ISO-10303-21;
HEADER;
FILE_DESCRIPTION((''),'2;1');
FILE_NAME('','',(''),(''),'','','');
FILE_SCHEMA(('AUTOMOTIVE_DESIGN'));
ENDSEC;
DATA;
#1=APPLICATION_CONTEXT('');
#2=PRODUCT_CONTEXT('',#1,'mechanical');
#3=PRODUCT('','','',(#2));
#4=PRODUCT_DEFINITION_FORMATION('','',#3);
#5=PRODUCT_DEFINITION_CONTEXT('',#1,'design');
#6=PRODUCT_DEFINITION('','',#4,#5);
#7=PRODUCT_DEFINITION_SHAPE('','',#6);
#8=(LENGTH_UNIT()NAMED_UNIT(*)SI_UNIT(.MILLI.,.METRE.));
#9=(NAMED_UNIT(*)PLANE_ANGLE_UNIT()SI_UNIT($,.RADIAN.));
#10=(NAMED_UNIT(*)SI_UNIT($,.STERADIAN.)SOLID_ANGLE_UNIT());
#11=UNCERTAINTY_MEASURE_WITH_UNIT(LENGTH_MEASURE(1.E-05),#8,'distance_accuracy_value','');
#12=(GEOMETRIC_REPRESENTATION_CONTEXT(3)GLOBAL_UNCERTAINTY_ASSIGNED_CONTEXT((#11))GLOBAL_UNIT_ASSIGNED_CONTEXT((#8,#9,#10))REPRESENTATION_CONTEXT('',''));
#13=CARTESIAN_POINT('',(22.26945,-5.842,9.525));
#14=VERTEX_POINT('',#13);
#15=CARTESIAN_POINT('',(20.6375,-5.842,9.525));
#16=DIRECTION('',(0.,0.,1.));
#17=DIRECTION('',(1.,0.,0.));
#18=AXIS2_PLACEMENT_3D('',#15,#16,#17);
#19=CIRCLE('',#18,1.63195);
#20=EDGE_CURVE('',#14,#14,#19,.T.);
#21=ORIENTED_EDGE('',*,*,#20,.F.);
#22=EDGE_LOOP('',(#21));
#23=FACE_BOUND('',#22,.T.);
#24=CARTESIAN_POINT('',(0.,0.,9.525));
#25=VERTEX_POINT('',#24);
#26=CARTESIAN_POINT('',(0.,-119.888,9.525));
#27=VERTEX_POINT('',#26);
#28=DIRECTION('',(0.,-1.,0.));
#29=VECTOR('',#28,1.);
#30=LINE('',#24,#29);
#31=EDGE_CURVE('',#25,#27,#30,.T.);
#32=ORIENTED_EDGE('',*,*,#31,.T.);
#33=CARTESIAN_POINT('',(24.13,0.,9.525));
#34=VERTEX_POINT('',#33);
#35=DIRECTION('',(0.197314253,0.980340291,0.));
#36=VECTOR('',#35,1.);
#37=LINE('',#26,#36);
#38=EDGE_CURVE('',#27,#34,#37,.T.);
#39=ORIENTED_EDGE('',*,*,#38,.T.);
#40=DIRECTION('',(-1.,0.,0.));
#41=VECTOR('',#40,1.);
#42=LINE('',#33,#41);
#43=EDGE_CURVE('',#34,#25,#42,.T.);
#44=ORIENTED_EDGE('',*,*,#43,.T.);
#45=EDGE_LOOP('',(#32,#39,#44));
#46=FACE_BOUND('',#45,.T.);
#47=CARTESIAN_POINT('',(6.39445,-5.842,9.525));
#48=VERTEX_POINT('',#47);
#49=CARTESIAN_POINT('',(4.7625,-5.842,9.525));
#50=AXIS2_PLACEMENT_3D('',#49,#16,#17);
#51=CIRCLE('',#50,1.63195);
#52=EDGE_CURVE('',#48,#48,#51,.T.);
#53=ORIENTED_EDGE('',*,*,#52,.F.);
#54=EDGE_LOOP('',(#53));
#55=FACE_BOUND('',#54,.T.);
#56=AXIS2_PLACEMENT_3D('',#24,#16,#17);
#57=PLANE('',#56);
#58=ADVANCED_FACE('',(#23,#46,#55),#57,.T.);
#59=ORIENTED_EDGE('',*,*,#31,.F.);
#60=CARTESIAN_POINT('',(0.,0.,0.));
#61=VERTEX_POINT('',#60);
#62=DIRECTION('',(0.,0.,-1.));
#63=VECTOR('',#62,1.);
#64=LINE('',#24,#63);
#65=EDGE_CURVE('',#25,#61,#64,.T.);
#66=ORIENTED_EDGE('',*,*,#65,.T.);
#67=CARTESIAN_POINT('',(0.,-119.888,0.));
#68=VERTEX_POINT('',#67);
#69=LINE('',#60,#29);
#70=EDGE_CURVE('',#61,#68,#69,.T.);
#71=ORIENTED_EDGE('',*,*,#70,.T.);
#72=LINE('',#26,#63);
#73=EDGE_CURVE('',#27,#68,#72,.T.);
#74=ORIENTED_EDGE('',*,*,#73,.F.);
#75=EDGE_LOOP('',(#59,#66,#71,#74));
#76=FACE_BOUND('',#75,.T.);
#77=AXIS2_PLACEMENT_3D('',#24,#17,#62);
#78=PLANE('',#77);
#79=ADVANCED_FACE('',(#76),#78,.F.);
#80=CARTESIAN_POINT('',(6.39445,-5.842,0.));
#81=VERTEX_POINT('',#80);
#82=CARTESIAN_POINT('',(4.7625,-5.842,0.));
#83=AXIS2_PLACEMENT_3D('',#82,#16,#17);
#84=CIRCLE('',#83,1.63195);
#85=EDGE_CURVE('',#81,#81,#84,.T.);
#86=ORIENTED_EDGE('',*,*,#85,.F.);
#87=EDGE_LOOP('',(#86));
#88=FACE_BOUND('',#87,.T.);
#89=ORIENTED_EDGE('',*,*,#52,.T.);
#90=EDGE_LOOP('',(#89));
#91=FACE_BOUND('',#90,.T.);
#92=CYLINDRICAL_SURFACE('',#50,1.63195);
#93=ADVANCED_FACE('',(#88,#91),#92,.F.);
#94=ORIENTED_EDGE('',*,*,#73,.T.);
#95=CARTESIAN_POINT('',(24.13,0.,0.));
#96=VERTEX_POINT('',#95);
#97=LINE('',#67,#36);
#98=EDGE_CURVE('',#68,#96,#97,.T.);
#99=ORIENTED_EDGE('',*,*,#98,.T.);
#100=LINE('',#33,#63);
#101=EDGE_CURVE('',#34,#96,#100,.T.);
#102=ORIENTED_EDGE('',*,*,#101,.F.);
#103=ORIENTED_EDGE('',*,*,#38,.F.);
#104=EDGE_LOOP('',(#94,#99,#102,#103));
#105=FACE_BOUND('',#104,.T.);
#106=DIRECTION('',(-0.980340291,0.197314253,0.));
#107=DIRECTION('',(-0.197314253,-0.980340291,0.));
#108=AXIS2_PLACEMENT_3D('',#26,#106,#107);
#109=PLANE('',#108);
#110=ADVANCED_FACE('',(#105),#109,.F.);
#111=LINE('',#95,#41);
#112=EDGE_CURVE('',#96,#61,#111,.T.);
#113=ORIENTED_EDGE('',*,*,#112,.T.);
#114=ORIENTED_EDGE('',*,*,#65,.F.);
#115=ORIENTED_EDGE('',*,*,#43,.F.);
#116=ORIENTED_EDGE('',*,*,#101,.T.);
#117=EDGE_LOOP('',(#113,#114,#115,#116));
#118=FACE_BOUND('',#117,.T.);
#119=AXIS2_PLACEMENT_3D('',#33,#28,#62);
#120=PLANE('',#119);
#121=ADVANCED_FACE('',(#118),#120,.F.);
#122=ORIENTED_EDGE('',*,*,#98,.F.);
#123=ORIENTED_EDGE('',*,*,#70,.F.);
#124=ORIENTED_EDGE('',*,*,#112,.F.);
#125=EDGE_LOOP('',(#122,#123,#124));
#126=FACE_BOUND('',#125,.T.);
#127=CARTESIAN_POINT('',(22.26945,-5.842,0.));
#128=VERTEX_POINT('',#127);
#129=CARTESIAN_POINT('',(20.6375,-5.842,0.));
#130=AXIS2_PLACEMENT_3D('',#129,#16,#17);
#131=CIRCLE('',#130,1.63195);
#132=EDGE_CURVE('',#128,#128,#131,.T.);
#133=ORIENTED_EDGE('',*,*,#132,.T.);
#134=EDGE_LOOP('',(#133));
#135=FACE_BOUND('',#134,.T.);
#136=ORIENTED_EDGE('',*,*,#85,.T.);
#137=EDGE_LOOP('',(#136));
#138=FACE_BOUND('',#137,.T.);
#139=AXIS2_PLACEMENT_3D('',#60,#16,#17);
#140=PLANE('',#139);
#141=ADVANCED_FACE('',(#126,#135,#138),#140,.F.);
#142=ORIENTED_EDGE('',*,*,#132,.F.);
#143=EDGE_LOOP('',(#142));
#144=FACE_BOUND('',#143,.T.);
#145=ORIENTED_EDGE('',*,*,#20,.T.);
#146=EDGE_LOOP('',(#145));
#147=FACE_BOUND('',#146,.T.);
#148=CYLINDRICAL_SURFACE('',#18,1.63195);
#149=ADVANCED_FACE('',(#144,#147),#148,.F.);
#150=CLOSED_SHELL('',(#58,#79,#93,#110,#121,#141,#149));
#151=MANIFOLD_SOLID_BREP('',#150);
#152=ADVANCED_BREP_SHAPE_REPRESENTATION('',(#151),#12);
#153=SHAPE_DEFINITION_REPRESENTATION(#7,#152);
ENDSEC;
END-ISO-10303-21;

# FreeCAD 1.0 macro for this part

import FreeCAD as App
import Part
import Sketcher
from FreeCAD import Vector
Q = App.Units.Quantity

doc = App.newDocument("Part")
body = doc.addObject("PartDesign::Body", "Body")

sketch1 = body.newObject("Sketcher::SketchObject", "Sketch")
sketch1.AttachmentSupport = (doc.getObject("XY_Plane"), [""])
sketch1.MapMode = "FlatFace"
sketch1.addGeometry([
    Part.LineSegment(Vector(0, 0, 0), Vector(0, -119.888, 0)),
    Part.LineSegment(Vector(0, -119.888, 0), Vector(24.13, 0, 0)),
    Part.LineSegment(Vector(24.13, 0, 0), Vector(0, 0, 0)),
], False)
sketch1.addConstraint([
    Sketcher.Constraint("Coincident", 0, 2, 1, 1),
    Sketcher.Constraint("Coincident", 1, 2, 2, 1),
    Sketcher.Constraint("Coincident", 2, 2, 0, 1),
    Sketcher.Constraint("Vertical", 0),
    Sketcher.Constraint("Horizontal", 2),
    Sketcher.Constraint("Coincident", 2, 2, -1, 1),
    Sketcher.Constraint("DistanceX", 2, 2, 2, 1, Q("0.95 in")),
    Sketcher.Constraint("DistanceY", 0, 2, 0, 1, Q("4.72 in")),
])
pad1 = body.newObject("PartDesign::Pad", "Pad")
pad1.Profile = sketch1
pad1.Length = Q("0.375 in")

sketch2 = body.newObject("Sketcher::SketchObject", "Sketch001")
sketch2.AttachmentSupport = (doc.getObject("XY_Plane"), [""])
sketch2.MapMode = "FlatFace"
sketch2.AttachmentOffset = App.Placement(Vector(0, 0, 0.375 * 25.4), App.Rotation())
sketch2.addGeometry([
    Part.Circle(Vector(20.6375, -5.842, 0), Vector(0, 0, 1), 1.63195),
    Part.Circle(Vector(4.7625, -5.842, 0), Vector(0, 0, 1), 1.63195),
], False)
sketch2.addConstraint([
    Sketcher.Constraint("Equal", 0, 1),
    Sketcher.Constraint("Horizontal", 0, 3, 1, 3),
    Sketcher.Constraint("Diameter", 0, Q("0.1285 in")),
    Sketcher.Constraint("DistanceY", 0, 3, -1, 1, Q("0.23 in")),
    Sketcher.Constraint("DistanceX", -1, 1, 0, 3, Q("0.8125 in")),
    Sketcher.Constraint("DistanceX", -1, 1, 1, 3, Q("0.1875 in")),
])
doc.recompute()
hole = body.newObject("PartDesign::Hole", "Hole")
hole.Profile = sketch2
hole.ThreadType = "None"
hole.Diameter = Q("0.1285 in")
hole.DepthType = "ThroughAll"

doc.recompute()
